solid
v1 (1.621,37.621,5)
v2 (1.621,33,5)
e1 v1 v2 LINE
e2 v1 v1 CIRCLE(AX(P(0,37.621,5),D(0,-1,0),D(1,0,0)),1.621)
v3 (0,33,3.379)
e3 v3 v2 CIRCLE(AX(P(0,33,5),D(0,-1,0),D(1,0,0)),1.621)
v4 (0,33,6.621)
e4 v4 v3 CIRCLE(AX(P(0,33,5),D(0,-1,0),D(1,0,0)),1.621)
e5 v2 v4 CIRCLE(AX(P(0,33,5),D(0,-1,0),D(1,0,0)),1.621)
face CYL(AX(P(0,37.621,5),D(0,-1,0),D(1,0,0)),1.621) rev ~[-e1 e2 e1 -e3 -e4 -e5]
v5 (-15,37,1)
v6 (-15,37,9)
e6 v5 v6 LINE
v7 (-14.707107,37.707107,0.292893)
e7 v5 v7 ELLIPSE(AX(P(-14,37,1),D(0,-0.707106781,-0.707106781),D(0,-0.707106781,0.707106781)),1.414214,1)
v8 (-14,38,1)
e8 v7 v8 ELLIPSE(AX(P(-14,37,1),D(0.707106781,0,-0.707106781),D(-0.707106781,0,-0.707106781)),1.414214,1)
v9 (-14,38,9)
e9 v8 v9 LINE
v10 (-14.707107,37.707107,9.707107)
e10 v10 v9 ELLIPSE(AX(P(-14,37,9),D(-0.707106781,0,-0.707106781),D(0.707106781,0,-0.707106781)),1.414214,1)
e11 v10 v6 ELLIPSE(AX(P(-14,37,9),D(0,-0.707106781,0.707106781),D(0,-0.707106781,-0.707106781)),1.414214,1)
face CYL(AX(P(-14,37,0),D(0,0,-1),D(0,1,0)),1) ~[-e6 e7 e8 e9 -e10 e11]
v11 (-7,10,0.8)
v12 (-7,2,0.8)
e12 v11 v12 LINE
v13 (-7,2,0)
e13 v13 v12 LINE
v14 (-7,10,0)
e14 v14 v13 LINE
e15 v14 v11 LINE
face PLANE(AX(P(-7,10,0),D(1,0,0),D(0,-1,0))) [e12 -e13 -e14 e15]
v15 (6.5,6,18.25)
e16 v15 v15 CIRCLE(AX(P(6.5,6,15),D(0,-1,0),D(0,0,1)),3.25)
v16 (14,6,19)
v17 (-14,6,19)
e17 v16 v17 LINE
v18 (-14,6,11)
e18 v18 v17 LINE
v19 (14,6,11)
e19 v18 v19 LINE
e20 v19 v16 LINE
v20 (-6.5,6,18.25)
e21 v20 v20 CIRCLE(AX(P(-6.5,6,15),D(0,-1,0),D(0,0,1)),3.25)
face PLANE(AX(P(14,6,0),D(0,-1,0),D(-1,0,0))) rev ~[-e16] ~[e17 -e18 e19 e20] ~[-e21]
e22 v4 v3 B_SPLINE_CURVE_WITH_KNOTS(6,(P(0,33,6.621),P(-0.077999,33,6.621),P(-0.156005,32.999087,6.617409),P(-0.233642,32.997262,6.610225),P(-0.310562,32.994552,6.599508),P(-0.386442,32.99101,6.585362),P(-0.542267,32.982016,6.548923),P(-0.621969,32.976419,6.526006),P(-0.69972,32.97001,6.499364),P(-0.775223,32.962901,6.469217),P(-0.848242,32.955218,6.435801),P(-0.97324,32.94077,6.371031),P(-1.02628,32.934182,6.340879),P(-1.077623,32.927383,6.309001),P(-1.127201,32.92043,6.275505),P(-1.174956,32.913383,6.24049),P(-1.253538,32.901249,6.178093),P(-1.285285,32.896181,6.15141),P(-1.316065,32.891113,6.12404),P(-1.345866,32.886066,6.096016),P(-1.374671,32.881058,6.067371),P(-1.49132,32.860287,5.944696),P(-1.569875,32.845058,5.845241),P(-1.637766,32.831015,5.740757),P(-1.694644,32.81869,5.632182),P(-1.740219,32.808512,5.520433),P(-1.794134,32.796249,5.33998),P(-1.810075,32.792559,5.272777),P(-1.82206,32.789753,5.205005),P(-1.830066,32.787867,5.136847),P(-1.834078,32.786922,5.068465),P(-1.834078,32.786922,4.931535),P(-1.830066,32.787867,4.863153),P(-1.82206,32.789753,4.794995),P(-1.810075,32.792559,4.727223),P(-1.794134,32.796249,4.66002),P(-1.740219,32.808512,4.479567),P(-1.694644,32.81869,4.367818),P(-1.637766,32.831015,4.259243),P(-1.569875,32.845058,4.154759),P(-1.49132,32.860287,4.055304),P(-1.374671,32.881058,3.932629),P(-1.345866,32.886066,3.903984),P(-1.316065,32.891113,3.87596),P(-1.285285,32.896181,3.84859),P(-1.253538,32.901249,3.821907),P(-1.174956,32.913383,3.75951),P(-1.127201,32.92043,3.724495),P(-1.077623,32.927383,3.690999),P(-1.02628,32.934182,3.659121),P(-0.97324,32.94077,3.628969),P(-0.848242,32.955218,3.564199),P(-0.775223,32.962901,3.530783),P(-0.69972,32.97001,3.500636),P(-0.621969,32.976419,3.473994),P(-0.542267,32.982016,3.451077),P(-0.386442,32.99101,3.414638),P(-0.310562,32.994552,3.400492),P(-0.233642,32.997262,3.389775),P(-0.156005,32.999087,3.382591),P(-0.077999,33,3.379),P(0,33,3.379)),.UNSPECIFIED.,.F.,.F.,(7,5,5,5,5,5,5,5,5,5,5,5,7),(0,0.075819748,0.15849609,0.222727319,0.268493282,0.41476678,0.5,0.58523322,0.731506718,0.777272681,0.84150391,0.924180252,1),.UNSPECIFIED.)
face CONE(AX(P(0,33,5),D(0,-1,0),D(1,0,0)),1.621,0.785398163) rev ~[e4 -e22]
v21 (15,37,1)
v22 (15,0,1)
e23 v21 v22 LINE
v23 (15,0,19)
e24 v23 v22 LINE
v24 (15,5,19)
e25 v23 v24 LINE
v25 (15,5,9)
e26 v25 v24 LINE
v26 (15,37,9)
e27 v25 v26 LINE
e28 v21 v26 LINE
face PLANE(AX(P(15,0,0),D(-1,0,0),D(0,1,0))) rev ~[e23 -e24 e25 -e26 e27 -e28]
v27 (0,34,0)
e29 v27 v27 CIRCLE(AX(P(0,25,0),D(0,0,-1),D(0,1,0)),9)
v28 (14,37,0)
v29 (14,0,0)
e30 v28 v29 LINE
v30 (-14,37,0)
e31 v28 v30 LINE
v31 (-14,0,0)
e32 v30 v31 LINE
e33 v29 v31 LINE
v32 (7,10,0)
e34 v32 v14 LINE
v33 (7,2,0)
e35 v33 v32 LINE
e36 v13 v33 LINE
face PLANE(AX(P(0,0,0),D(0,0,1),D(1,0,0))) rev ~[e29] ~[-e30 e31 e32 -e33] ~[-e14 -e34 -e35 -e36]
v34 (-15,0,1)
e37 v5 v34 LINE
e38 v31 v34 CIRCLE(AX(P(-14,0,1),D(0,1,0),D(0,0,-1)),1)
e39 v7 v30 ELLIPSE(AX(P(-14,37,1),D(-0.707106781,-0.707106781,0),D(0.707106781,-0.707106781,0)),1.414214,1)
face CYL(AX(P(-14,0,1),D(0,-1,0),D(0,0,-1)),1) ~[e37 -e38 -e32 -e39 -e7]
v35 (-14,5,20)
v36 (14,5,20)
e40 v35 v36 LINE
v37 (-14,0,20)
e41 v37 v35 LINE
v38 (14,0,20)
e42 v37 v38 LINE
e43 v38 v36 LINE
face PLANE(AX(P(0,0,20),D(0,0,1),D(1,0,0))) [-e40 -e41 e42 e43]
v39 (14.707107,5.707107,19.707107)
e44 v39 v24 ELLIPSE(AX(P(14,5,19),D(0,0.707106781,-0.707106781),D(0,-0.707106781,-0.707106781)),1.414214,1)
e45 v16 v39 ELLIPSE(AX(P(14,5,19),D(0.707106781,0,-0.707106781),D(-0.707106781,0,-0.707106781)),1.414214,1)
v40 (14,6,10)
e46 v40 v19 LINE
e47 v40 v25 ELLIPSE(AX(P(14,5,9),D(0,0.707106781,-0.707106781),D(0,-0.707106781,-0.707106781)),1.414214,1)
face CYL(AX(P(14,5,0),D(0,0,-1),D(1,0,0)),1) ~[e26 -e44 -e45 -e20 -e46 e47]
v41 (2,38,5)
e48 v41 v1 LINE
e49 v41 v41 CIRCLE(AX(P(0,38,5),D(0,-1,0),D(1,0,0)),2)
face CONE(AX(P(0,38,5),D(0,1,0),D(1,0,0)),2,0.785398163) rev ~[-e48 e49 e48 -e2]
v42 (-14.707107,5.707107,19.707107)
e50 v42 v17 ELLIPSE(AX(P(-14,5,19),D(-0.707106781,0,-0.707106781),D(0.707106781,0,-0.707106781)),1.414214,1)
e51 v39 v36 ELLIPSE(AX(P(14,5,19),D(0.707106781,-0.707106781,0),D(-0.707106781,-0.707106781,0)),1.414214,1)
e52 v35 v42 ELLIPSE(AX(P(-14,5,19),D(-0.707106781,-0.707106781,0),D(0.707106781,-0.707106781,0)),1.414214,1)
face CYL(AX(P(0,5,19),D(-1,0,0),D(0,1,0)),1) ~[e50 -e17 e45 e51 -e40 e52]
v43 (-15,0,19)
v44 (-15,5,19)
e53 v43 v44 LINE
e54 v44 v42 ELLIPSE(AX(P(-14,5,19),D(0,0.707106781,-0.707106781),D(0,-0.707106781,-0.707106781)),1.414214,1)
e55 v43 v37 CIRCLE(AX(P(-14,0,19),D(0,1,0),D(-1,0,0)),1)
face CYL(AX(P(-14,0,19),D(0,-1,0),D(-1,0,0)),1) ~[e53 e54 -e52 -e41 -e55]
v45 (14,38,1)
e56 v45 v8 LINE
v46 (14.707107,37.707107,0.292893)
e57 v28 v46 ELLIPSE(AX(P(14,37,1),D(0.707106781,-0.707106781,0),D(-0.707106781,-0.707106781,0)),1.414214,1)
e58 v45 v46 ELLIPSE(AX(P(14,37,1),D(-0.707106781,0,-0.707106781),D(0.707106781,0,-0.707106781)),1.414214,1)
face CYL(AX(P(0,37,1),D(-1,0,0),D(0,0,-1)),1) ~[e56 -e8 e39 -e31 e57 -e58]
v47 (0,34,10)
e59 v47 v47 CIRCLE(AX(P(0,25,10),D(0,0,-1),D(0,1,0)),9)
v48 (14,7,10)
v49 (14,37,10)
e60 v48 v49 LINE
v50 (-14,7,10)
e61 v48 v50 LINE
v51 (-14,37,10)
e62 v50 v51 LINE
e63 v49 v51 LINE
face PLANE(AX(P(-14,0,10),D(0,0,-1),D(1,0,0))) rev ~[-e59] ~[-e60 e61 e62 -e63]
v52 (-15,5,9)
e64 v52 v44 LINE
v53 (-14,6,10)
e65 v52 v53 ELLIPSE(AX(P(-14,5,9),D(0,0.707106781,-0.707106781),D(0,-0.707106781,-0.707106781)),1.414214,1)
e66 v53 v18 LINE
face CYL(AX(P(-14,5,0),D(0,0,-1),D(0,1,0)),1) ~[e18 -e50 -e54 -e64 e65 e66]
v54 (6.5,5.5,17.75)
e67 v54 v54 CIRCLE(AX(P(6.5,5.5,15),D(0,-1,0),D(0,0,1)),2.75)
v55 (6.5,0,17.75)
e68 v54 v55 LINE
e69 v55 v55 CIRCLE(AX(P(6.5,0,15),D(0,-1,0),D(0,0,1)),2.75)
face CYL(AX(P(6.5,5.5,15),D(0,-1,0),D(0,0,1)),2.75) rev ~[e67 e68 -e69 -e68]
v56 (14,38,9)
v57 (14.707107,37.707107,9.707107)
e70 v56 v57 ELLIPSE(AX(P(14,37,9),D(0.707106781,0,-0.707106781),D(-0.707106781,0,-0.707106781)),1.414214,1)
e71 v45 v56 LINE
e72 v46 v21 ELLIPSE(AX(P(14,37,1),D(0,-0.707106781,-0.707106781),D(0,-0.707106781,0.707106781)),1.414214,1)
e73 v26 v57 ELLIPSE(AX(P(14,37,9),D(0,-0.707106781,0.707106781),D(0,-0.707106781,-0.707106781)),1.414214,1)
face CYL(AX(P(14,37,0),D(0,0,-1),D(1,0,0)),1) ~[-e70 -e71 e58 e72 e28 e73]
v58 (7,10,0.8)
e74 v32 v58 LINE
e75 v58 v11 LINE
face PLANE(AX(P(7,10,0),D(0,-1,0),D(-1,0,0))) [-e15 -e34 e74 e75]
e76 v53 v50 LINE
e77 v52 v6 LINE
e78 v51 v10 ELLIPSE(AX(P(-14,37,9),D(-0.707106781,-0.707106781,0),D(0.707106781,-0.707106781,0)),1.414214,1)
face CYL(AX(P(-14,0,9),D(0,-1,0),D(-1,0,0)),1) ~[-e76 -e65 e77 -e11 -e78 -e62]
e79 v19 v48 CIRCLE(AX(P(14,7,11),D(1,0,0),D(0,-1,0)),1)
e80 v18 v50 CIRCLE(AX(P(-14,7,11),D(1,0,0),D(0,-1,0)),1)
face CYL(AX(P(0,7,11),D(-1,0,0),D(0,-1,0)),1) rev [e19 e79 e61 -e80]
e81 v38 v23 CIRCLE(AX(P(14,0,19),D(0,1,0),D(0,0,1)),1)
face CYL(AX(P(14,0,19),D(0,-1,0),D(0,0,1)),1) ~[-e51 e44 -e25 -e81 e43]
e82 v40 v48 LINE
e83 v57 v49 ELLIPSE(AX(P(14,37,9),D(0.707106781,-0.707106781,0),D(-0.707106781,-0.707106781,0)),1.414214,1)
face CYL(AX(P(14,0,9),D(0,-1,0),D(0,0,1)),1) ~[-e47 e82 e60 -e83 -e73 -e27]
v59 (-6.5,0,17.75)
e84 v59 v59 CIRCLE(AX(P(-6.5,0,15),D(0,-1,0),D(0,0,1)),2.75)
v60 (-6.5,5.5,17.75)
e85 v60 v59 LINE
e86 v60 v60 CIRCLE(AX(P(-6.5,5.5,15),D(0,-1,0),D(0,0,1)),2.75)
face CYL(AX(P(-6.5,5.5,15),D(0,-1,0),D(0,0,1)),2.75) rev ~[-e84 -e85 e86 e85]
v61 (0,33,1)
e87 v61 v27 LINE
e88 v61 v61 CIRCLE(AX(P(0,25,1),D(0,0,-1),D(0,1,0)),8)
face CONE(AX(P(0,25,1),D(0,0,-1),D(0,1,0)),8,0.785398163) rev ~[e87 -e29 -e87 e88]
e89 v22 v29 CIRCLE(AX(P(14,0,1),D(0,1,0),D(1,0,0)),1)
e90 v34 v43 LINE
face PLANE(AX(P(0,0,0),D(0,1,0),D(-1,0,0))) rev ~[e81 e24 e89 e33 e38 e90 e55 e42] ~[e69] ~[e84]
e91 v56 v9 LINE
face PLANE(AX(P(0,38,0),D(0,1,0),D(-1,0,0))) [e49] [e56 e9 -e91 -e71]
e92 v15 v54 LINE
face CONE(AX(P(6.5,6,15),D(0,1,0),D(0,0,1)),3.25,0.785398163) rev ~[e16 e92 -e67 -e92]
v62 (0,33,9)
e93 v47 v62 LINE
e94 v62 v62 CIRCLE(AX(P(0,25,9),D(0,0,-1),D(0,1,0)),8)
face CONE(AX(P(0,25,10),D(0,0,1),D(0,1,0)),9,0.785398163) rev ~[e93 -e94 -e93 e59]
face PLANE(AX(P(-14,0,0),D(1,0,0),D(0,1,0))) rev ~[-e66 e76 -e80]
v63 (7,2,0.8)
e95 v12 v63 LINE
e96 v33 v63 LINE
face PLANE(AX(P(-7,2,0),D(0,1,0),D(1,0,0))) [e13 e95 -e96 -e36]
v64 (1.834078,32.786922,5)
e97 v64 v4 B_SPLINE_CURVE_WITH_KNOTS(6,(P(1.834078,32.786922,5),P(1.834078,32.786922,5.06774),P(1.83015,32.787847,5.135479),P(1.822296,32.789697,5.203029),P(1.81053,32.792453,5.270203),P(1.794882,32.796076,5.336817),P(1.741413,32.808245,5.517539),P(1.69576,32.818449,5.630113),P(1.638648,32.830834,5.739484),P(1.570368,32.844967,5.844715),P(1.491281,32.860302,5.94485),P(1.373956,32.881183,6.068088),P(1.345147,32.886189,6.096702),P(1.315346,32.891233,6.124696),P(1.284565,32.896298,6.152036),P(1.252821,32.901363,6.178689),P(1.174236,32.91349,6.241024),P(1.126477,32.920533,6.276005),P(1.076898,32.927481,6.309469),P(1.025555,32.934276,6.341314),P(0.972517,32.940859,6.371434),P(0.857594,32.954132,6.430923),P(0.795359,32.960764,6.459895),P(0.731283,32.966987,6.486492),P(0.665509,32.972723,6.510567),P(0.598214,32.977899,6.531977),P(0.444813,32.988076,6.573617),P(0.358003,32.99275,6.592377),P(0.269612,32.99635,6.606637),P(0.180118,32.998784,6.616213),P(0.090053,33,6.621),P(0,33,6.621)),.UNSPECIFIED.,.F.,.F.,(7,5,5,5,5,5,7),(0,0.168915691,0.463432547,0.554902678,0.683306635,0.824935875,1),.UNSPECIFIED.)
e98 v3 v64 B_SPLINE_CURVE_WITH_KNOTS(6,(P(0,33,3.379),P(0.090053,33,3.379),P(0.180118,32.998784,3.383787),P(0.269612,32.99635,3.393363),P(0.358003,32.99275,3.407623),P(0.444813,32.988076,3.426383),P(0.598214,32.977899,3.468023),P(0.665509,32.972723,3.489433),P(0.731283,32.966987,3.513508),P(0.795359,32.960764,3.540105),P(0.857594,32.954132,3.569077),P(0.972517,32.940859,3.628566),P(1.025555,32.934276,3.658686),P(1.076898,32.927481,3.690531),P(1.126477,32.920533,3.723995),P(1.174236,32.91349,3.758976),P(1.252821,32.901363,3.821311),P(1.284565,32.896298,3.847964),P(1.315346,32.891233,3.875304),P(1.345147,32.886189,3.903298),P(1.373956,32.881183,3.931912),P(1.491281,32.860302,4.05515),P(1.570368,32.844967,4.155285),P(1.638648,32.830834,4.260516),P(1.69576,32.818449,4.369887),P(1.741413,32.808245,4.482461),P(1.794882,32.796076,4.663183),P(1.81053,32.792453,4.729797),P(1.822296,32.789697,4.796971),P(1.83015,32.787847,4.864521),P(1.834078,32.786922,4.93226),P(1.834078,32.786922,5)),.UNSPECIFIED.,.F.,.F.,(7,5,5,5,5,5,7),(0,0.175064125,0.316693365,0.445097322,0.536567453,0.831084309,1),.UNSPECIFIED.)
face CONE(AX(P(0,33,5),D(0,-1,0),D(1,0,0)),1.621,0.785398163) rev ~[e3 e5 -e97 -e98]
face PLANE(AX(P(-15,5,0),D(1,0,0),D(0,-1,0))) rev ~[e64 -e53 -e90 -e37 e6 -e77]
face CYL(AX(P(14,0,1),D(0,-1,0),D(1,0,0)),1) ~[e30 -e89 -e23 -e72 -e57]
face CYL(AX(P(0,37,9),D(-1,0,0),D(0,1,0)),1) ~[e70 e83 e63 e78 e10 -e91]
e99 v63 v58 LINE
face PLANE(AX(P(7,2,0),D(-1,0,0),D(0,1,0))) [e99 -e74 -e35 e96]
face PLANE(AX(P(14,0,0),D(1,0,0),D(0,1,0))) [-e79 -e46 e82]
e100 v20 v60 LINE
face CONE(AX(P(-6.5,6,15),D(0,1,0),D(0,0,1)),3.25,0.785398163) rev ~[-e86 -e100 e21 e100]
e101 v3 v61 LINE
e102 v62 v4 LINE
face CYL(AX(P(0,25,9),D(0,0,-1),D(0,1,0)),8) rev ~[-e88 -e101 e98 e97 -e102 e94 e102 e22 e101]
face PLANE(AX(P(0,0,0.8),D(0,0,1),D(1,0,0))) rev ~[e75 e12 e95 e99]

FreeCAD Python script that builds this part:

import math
import FreeCAD as App
import Part
import Sketcher

doc = App.newDocument("Part")
body = doc.addObject("PartDesign::Body", "Body")

# Sketch on XY plane
sketch1 = body.newObject("Sketcher::SketchObject", "Sketch")
sketch1.AttachmentSupport = (doc.getObject("XY_Plane"), [""])
sketch1.MapMode = "FlatFace"
sketch1.addGeometry(Part.ArcOfCircle(Part.Circle(App.Vector(-14, 5, 0), App.Vector(0, 0, 1), 1), math.radians(90), math.radians(180)), False)
sketch1.addGeometry(Part.LineSegment(App.Vector(-15, 5, 0), App.Vector(-15, 0, 0)), False)
sketch1.addGeometry(Part.LineSegment(App.Vector(-15, 0, 0), App.Vector(15, 0, 0)), False)
sketch1.addGeometry(Part.LineSegment(App.Vector(15, 0, 0), App.Vector(15, 5, 0)), False)
sketch1.addGeometry(Part.ArcOfCircle(Part.Circle(App.Vector(14, 5, 0), App.Vector(0, 0, 1), 1), math.radians(0), math.radians(90)), False)
sketch1.addGeometry(Part.LineSegment(App.Vector(14, 6, 0), App.Vector(-14, 6, 0)), False)
sketch1.addConstraint(Sketcher.Constraint("Tangent", 0, 2, 1, 1))
sketch1.addConstraint(Sketcher.Constraint("Coincident", 1, 2, 2, 1))
sketch1.addConstraint(Sketcher.Constraint("Coincident", 2, 2, 3, 1))
sketch1.addConstraint(Sketcher.Constraint("Tangent", 3, 2, 4, 1))
sketch1.addConstraint(Sketcher.Constraint("Tangent", 4, 2, 5, 1))
sketch1.addConstraint(Sketcher.Constraint("Tangent", 5, 2, 0, 1))
sketch1.addConstraint(Sketcher.Constraint("Vertical", 1))
sketch1.addConstraint(Sketcher.Constraint("Horizontal", 2))
sketch1.addConstraint(Sketcher.Constraint("Vertical", 3))
sketch1.addConstraint(Sketcher.Constraint("Horizontal", 5))
sketch1.addConstraint(Sketcher.Constraint("Equal", 0, 4))
sketch1.addConstraint(Sketcher.Constraint("Symmetric", 1, 2, 2, 2, -1, 1))
sketch1.addConstraint(Sketcher.Constraint("Radius", 0, 1.0))
sketch1.addConstraint(Sketcher.Constraint("DistanceX", 2, 1, 2, 2, 30.0))
sketch1.addConstraint(Sketcher.Constraint("DistanceY", 1, 2, 1, 1, 5.0))
pad1 = body.newObject("PartDesign::Pad", "Pad")
pad1.Profile = sketch1
pad1.Length = 20

# Sketch on XZ plane
sketch2 = body.newObject("Sketcher::SketchObject", "Sketch001")
sketch2.AttachmentSupport = (doc.getObject("XZ_Plane"), [""])
sketch2.MapMode = "FlatFace"
sketch2.addGeometry(Part.ArcOfCircle(Part.Circle(App.Vector(-14, 1, 0), App.Vector(0, 0, 1), 1), math.radians(180), math.radians(270)), False)
sketch2.addGeometry(Part.LineSegment(App.Vector(-15, 1, 0), App.Vector(-15, 9, 0)), False)
sketch2.addGeometry(Part.ArcOfCircle(Part.Circle(App.Vector(-14, 9, 0), App.Vector(0, 0, 1), 1), math.radians(90), math.radians(180)), False)
sketch2.addGeometry(Part.LineSegment(App.Vector(-14, 10, 0), App.Vector(14, 10, 0)), False)
sketch2.addGeometry(Part.ArcOfCircle(Part.Circle(App.Vector(14, 9, 0), App.Vector(0, 0, 1), 1), math.radians(0), math.radians(90)), False)
sketch2.addGeometry(Part.LineSegment(App.Vector(15, 9, 0), App.Vector(15, 1, 0)), False)
sketch2.addGeometry(Part.ArcOfCircle(Part.Circle(App.Vector(14, 1, 0), App.Vector(0, 0, 1), 1), math.radians(-90), math.radians(0)), False)
sketch2.addGeometry(Part.LineSegment(App.Vector(14, 0, 0), App.Vector(-14, 0, 0)), False)
sketch2.addConstraint(Sketcher.Constraint("Tangent", 0, 1, 1, 1))
sketch2.addConstraint(Sketcher.Constraint("Tangent", 1, 2, 2, 2))
sketch2.addConstraint(Sketcher.Constraint("Tangent", 2, 1, 3, 1))
sketch2.addConstraint(Sketcher.Constraint("Tangent", 3, 2, 4, 2))
sketch2.addConstraint(Sketcher.Constraint("Tangent", 4, 1, 5, 1))
sketch2.addConstraint(Sketcher.Constraint("Tangent", 5, 2, 6, 2))
sketch2.addConstraint(Sketcher.Constraint("Tangent", 6, 1, 7, 1))
sketch2.addConstraint(Sketcher.Constraint("Tangent", 7, 2, 0, 2))
sketch2.addConstraint(Sketcher.Constraint("Vertical", 1))
sketch2.addConstraint(Sketcher.Constraint("Horizontal", 3))
sketch2.addConstraint(Sketcher.Constraint("Vertical", 5))
sketch2.addConstraint(Sketcher.Constraint("Horizontal", 7))
sketch2.addConstraint(Sketcher.Constraint("Equal", 0, 2))
sketch2.addConstraint(Sketcher.Constraint("Equal", 2, 4))
sketch2.addConstraint(Sketcher.Constraint("Equal", 4, 6))
sketch2.addConstraint(Sketcher.Constraint("Symmetric", 6, 1, 7, 2, -1, 1))
sketch2.addConstraint(Sketcher.Constraint("Radius", 0, 1.0))
sketch2.addConstraint(Sketcher.Constraint("DistanceX", 3, 1, 3, 2, 28.0))
sketch2.addConstraint(Sketcher.Constraint("DistanceY", 1, 1, 1, 2, 8.0))
pad2 = body.newObject("PartDesign::Pad", "Pad001")
pad2.Profile = sketch2
pad2.Length = 38
pad2.Reversed = True

# Sketch on XY plane
sketch3 = body.newObject("Sketcher::SketchObject", "Sketch002")
sketch3.AttachmentSupport = (doc.getObject("XY_Plane"), [""])
sketch3.MapMode = "FlatFace"
sketch3.addGeometry(Part.ArcOfCircle(Part.Circle(App.Vector(-14, 37, 0), App.Vector(0, 0, 1), 1), math.radians(90), math.radians(180)), False)
sketch3.addGeometry(Part.LineSegment(App.Vector(-14, 38, 0), App.Vector(14, 38, 0)), False)
sketch3.addGeometry(Part.ArcOfCircle(Part.Circle(App.Vector(14, 37, 0), App.Vector(0, 0, 1), 1), math.radians(0), math.radians(90)), False)
sketch3.addGeometry(Part.LineSegment(App.Vector(15, 37, 0), App.Vector(15, 76, 0)), False)
sketch3.addGeometry(Part.LineSegment(App.Vector(15, 76, 0), App.Vector(-15, 76, 0)), False)
sketch3.addGeometry(Part.LineSegment(App.Vector(-15, 76, 0), App.Vector(-15, 37, 0)), False)
sketch3.addConstraint(Sketcher.Constraint("Tangent", 0, 1, 1, 1))
sketch3.addConstraint(Sketcher.Constraint("Tangent", 1, 2, 2, 2))
sketch3.addConstraint(Sketcher.Constraint("Tangent", 2, 1, 3, 1))
sketch3.addConstraint(Sketcher.Constraint("Coincident", 3, 2, 4, 1))
sketch3.addConstraint(Sketcher.Constraint("Coincident", 4, 2, 5, 1))
sketch3.addConstraint(Sketcher.Constraint("Tangent", 5, 2, 0, 2))
sketch3.addConstraint(Sketcher.Constraint("Horizontal", 1))
sketch3.addConstraint(Sketcher.Constraint("Vertical", 3))
sketch3.addConstraint(Sketcher.Constraint("Horizontal", 4))
sketch3.addConstraint(Sketcher.Constraint("Vertical", 5))
sketch3.addConstraint(Sketcher.Constraint("Equal", 0, 2))
sketch3.addConstraint(Sketcher.Constraint("Radius", 0, 1.0))
sketch3.addConstraint(Sketcher.Constraint("DistanceX", 1, 1, 1, 2, 28.0))
sketch3.addConstraint(Sketcher.Constraint("DistanceY", 3, 1, 3, 2, 39.0))
sketch3.addConstraint(Sketcher.Constraint("DistanceX", 0, 3, -1, 1, 14.0))
sketch3.addConstraint(Sketcher.Constraint("DistanceY", -1, 1, 0, 3, 37.0))
pocket1 = body.newObject("PartDesign::Pocket", "Pocket")
pocket1.Profile = sketch3
pocket1.Length = 10
pocket1.Reversed = True

# Sketch on YZ plane
sketch4 = body.newObject("Sketcher::SketchObject", "Sketch003")
sketch4.AttachmentSupport = (doc.getObject("YZ_Plane"), [""])
sketch4.MapMode = "FlatFace"
sketch4.addGeometry(Part.LineSegment(App.Vector(25, 10, 0), App.Vector(25, 0, 0)), False)
sketch4.addGeometry(Part.LineSegment(App.Vector(25, 0, 0), App.Vector(34, 0, 0)), False)
sketch4.addGeometry(Part.LineSegment(App.Vector(34, 0, 0), App.Vector(33, 1, 0)), False)
sketch4.addGeometry(Part.LineSegment(App.Vector(33, 1, 0), App.Vector(33, 9, 0)), False)
sketch4.addGeometry(Part.LineSegment(App.Vector(33, 9, 0), App.Vector(34, 10, 0)), False)
sketch4.addGeometry(Part.LineSegment(App.Vector(34, 10, 0), App.Vector(25, 10, 0)), False)
sketch4.addGeometry(Part.LineSegment(App.Vector(25, 10, 0), App.Vector(25, 0, 0)), True)  # axis
sketch4.addConstraint(Sketcher.Constraint("Coincident", 0, 2, 1, 1))
sketch4.addConstraint(Sketcher.Constraint("Coincident", 1, 2, 2, 1))
sketch4.addConstraint(Sketcher.Constraint("Coincident", 2, 2, 3, 1))
sketch4.addConstraint(Sketcher.Constraint("Coincident", 3, 2, 4, 1))
sketch4.addConstraint(Sketcher.Constraint("Coincident", 4, 2, 5, 1))
sketch4.addConstraint(Sketcher.Constraint("Coincident", 5, 2, 0, 1))
sketch4.addConstraint(Sketcher.Constraint("Vertical", 0))
sketch4.addConstraint(Sketcher.Constraint("Horizontal", 1))
sketch4.addConstraint(Sketcher.Constraint("Vertical", 3))
sketch4.addConstraint(Sketcher.Constraint("Horizontal", 5))
sketch4.addConstraint(Sketcher.Constraint("Vertical", 6))
sketch4.addConstraint(Sketcher.Constraint("Coincident", 6, 1, 5, 2))
sketch4.addConstraint(Sketcher.Constraint("PointOnObject", 0, 2, -1))
sketch4.addConstraint(Sketcher.Constraint("PointOnObject", 6, 2, -1))
sketch4.addConstraint(Sketcher.Constraint("Perpendicular", 2, 4))
sketch4.addConstraint(Sketcher.Constraint("Vertical", 1, 2, 4, 2))
sketch4.addConstraint(Sketcher.Constraint("Equal", 2, 4))
sketch4.addConstraint(Sketcher.Constraint("DistanceX", 1, 1, 1, 2, 9.0))
sketch4.addConstraint(Sketcher.Constraint("DistanceY", 0, 2, 0, 1, 10.0))
sketch4.addConstraint(Sketcher.Constraint("DistanceY", 3, 1, 3, 2, 8.0))
sketch4.addConstraint(Sketcher.Constraint("DistanceX", -1, 1, 0, 2, 25.0))
groove = body.newObject("PartDesign::Groove", "Groove")
groove.Profile = sketch4
groove.ReferenceAxis = (sketch4, ["Axis0"])
groove.Angle = 360

# Sketch on XY plane
sketch5 = body.newObject("Sketcher::SketchObject", "Sketch004")
sketch5.AttachmentSupport = (doc.getObject("XY_Plane"), [""])
sketch5.MapMode = "FlatFace"
sketch5.AttachmentOffset = App.Placement(App.Vector(0, 0, 5), App.Rotation())
sketch5.addGeometry(Part.LineSegment(App.Vector(0, 38, 0), App.Vector(0, 25, 0)), False)
sketch5.addGeometry(Part.LineSegment(App.Vector(0, 25, 0), App.Vector(2, 25, 0)), False)
sketch5.addGeometry(Part.LineSegment(App.Vector(2, 25, 0), App.Vector(2, 32.6, 0)), False)
sketch5.addGeometry(Part.LineSegment(App.Vector(2, 32.6, 0), App.Vector(1.6, 33, 0)), False)
sketch5.addGeometry(Part.LineSegment(App.Vector(1.6, 33, 0), App.Vector(1.6, 37.6, 0)), False)
sketch5.addGeometry(Part.LineSegment(App.Vector(1.6, 37.6, 0), App.Vector(2, 38, 0)), False)
sketch5.addGeometry(Part.LineSegment(App.Vector(2, 38, 0), App.Vector(0, 38, 0)), False)
sketch5.addConstraint(Sketcher.Constraint("Coincident", 0, 2, 1, 1))
sketch5.addConstraint(Sketcher.Constraint("Coincident", 1, 2, 2, 1))
sketch5.addConstraint(Sketcher.Constraint("Coincident", 2, 2, 3, 1))
sketch5.addConstraint(Sketcher.Constraint("Coincident", 3, 2, 4, 1))
sketch5.addConstraint(Sketcher.Constraint("Coincident", 4, 2, 5, 1))
sketch5.addConstraint(Sketcher.Constraint("Coincident", 5, 2, 6, 1))
sketch5.addConstraint(Sketcher.Constraint("Coincident", 6, 2, 0, 1))
sketch5.addConstraint(Sketcher.Constraint("Vertical", 0))
sketch5.addConstraint(Sketcher.Constraint("Horizontal", 1))
sketch5.addConstraint(Sketcher.Constraint("Vertical", 2))
sketch5.addConstraint(Sketcher.Constraint("Vertical", 4))
sketch5.addConstraint(Sketcher.Constraint("Horizontal", 6))
sketch5.addConstraint(Sketcher.Constraint("PointOnObject", 0, 2, -2))
sketch5.addConstraint(Sketcher.Constraint("Perpendicular", 3, 5))
sketch5.addConstraint(Sketcher.Constraint("Vertical", 2, 2, 5, 2))
sketch5.addConstraint(Sketcher.Constraint("Equal", 3, 5))
sketch5.addConstraint(Sketcher.Constraint("DistanceX", 1, 1, 1, 2, 2.0))
sketch5.addConstraint(Sketcher.Constraint("DistanceY", 0, 2, 0, 1, 13.0))
sketch5.addConstraint(Sketcher.Constraint("DistanceY", -1, 1, 0, 2, 25.0))
sketch5.addConstraint(Sketcher.Constraint("DistanceY", -1, 1, 3, 2, 33.0))
sketch5.addConstraint(Sketcher.Constraint("DistanceY", 2, 1, 2, 2, 7.621))
groove2 = body.newObject("PartDesign::Groove", "Groove001")
groove2.Profile = sketch5
groove2.ReferenceAxis = (sketch5, ["V_Axis"])
groove2.Angle = 360

# Sketch on XZ plane
sketch6 = body.newObject("Sketcher::SketchObject", "Sketch005")
sketch6.AttachmentSupport = (doc.getObject("XZ_Plane"), [""])
sketch6.MapMode = "FlatFace"
sketch6.AttachmentOffset = App.Placement(App.Vector(0, 0, -6), App.Rotation())
sketch6.addGeometry(Part.Circle(App.Vector(-6.5, 15, 0), App.Vector(0, 0, 1), 2.8), False)
sketch6.addConstraint(Sketcher.Constraint("Diameter", 0, 5.5))
sketch6.addConstraint(Sketcher.Constraint("DistanceY", -1, 1, 0, 3, 15.0))
sketch6.addConstraint(Sketcher.Constraint("DistanceX", 0, 3, -1, 1, 6.5))
doc.recompute()
hole = body.newObject("PartDesign::Hole", "Hole")
hole.Profile = sketch6
hole.ThreadType = "None"
hole.Diameter = 5.5
hole.DepthType = "Dimension"
hole.Depth = 6
hole.DrillPoint = "Flat"
hole.HoleCutType = "Countersink"
hole.HoleCutDiameter = 6.5
hole.HoleCutCountersinkAngle = 90
hole.Reversed = True

# Sketch on XZ plane
sketch7 = body.newObject("Sketcher::SketchObject", "Sketch006")
sketch7.AttachmentSupport = (doc.getObject("XZ_Plane"), [""])
sketch7.MapMode = "FlatFace"
sketch7.AttachmentOffset = App.Placement(App.Vector(0, 0, -6), App.Rotation())
sketch7.addGeometry(Part.Circle(App.Vector(6.5, 15, 0), App.Vector(0, 0, 1), 2.8), False)
sketch7.addConstraint(Sketcher.Constraint("Diameter", 0, 5.5))
sketch7.addConstraint(Sketcher.Constraint("DistanceY", -1, 1, 0, 3, 15.0))
sketch7.addConstraint(Sketcher.Constraint("DistanceX", -1, 1, 0, 3, 6.5))
doc.recompute()
hole2 = body.newObject("PartDesign::Hole", "Hole001")
hole2.Profile = sketch7
hole2.ThreadType = "None"
hole2.Diameter = 5.5
hole2.DepthType = "Dimension"
hole2.Depth = 6
hole2.DrillPoint = "Flat"
hole2.HoleCutType = "Countersink"
hole2.HoleCutDiameter = 6.5
hole2.HoleCutCountersinkAngle = 90
hole2.Reversed = True

# Sketch on XZ plane
sketch8 = body.newObject("Sketcher::SketchObject", "Sketch007")
sketch8.AttachmentSupport = (doc.getObject("XZ_Plane"), [""])
sketch8.MapMode = "FlatFace"
sketch8.addGeometry(Part.LineSegment(App.Vector(30, -10, 0), App.Vector(-30, -10, 0)), False)
sketch8.addGeometry(Part.LineSegment(App.Vector(-30, -10, 0), App.Vector(-30, 30, 0)), False)
sketch8.addGeometry(Part.LineSegment(App.Vector(-30, 30, 0), App.Vector(30, 30, 0)), False)
sketch8.addGeometry(Part.LineSegment(App.Vector(30, 30, 0), App.Vector(30, -10, 0)), False)
sketch8.addGeometry(Part.LineSegment(App.Vector(-15, 19, 0), App.Vector(-15, 1, 0)), False)
sketch8.addGeometry(Part.ArcOfCircle(Part.Circle(App.Vector(-14, 1, 0), App.Vector(0, 0, 1), 1), math.radians(180), math.radians(270)), False)
sketch8.addGeometry(Part.LineSegment(App.Vector(-14, 0, 0), App.Vector(14, 0, 0)), False)
sketch8.addGeometry(Part.ArcOfCircle(Part.Circle(App.Vector(14, 1, 0), App.Vector(0, 0, 1), 1), math.radians(-90), math.radians(0)), False)
sketch8.addGeometry(Part.LineSegment(App.Vector(15, 1, 0), App.Vector(15, 19, 0)), False)
sketch8.addGeometry(Part.ArcOfCircle(Part.Circle(App.Vector(14, 19, 0), App.Vector(0, 0, 1), 1), math.radians(0), math.radians(90)), False)
sketch8.addGeometry(Part.LineSegment(App.Vector(14, 20, 0), App.Vector(-14, 20, 0)), False)
sketch8.addGeometry(Part.ArcOfCircle(Part.Circle(App.Vector(-14, 19, 0), App.Vector(0, 0, 1), 1), math.radians(90), math.radians(180)), False)
sketch8.addConstraint(Sketcher.Constraint("Coincident", 0, 2, 1, 1))
sketch8.addConstraint(Sketcher.Constraint("Coincident", 1, 2, 2, 1))
sketch8.addConstraint(Sketcher.Constraint("Coincident", 2, 2, 3, 1))
sketch8.addConstraint(Sketcher.Constraint("Coincident", 3, 2, 0, 1))
sketch8.addConstraint(Sketcher.Constraint("Tangent", 4, 2, 5, 1))
sketch8.addConstraint(Sketcher.Constraint("Tangent", 5, 2, 6, 1))
sketch8.addConstraint(Sketcher.Constraint("Tangent", 6, 2, 7, 1))
sketch8.addConstraint(Sketcher.Constraint("Tangent", 7, 2, 8, 1))
sketch8.addConstraint(Sketcher.Constraint("Tangent", 8, 2, 9, 1))
sketch8.addConstraint(Sketcher.Constraint("Tangent", 9, 2, 10, 1))
sketch8.addConstraint(Sketcher.Constraint("Tangent", 10, 2, 11, 1))
sketch8.addConstraint(Sketcher.Constraint("Tangent", 11, 2, 4, 1))
sketch8.addConstraint(Sketcher.Constraint("Horizontal", 0))
sketch8.addConstraint(Sketcher.Constraint("Vertical", 1))
sketch8.addConstraint(Sketcher.Constraint("Horizontal", 2))
sketch8.addConstraint(Sketcher.Constraint("Vertical", 3))
sketch8.addConstraint(Sketcher.Constraint("Vertical", 4))
sketch8.addConstraint(Sketcher.Constraint("Horizontal", 6))
sketch8.addConstraint(Sketcher.Constraint("Vertical", 8))
sketch8.addConstraint(Sketcher.Constraint("Horizontal", 10))
sketch8.addConstraint(Sketcher.Constraint("Equal", 5, 7))
sketch8.addConstraint(Sketcher.Constraint("Equal", 7, 9))
sketch8.addConstraint(Sketcher.Constraint("Equal", 9, 11))
sketch8.addConstraint(Sketcher.Constraint("Symmetric", 5, 2, 6, 2, -1, 1))
sketch8.addConstraint(Sketcher.Constraint("Radius", 5, 1.0))
sketch8.addConstraint(Sketcher.Constraint("DistanceX", 0, 2, 0, 1, 60.0))
sketch8.addConstraint(Sketcher.Constraint("DistanceX", 6, 1, 6, 2, 28.0))
sketch8.addConstraint(Sketcher.Constraint("DistanceY", 1, 1, 1, 2, 40.0))
sketch8.addConstraint(Sketcher.Constraint("DistanceY", 4, 2, 4, 1, 18.0))
sketch8.addConstraint(Sketcher.Constraint("DistanceX", 0, 2, -1, 1, 30.0))
sketch8.addConstraint(Sketcher.Constraint("DistanceY", 0, 2, -1, 1, 10.0))
pocket2 = body.newObject("PartDesign::Pocket", "Pocket001")
pocket2.Profile = sketch8
pocket2.Length = 38

# Sketch on XY plane
sketch9 = body.newObject("Sketcher::SketchObject", "Sketch008")
sketch9.AttachmentSupport = (doc.getObject("XY_Plane"), [""])
sketch9.MapMode = "FlatFace"
sketch9.addGeometry(Part.LineSegment(App.Vector(7, 10, 0), App.Vector(-7, 10, 0)), False)
sketch9.addGeometry(Part.LineSegment(App.Vector(-7, 10, 0), App.Vector(-7, 2, 0)), False)
sketch9.addGeometry(Part.LineSegment(App.Vector(-7, 2, 0), App.Vector(7, 2, 0)), False)
sketch9.addGeometry(Part.LineSegment(App.Vector(7, 2, 0), App.Vector(7, 10, 0)), False)
sketch9.addConstraint(Sketcher.Constraint("Coincident", 0, 2, 1, 1))
sketch9.addConstraint(Sketcher.Constraint("Coincident", 1, 2, 2, 1))
sketch9.addConstraint(Sketcher.Constraint("Coincident", 2, 2, 3, 1))
sketch9.addConstraint(Sketcher.Constraint("Coincident", 3, 2, 0, 1))
sketch9.addConstraint(Sketcher.Constraint("Horizontal", 0))
sketch9.addConstraint(Sketcher.Constraint("Vertical", 1))
sketch9.addConstraint(Sketcher.Constraint("Horizontal", 2))
sketch9.addConstraint(Sketcher.Constraint("Vertical", 3))
sketch9.addConstraint(Sketcher.Constraint("DistanceX", 0, 2, 0, 1, 14.0))
sketch9.addConstraint(Sketcher.Constraint("DistanceY", 1, 2, 1, 1, 8.0))
sketch9.addConstraint(Sketcher.Constraint("DistanceX", 0, 2, -1, 1, 7.0))
sketch9.addConstraint(Sketcher.Constraint("DistanceY", -1, 1, 0, 2, 10.0))
pocket3 = body.newObject("PartDesign::Pocket", "Pocket002")
pocket3.Profile = sketch9
pocket3.Length = 0.8
pocket3.Reversed = True

# Sketch on YZ plane
sketch10 = body.newObject("Sketcher::SketchObject", "Sketch009")
sketch10.AttachmentSupport = (doc.getObject("YZ_Plane"), [""])
sketch10.MapMode = "FlatFace"
sketch10.addGeometry(Part.LineSegment(App.Vector(57, -10, 0), App.Vector(57, 30, 0)), False)
sketch10.addGeometry(Part.LineSegment(App.Vector(57, 30, 0), App.Vector(-19, 30, 0)), False)
sketch10.addGeometry(Part.LineSegment(App.Vector(-19, 30, 0), App.Vector(-19, -10, 0)), False)
sketch10.addGeometry(Part.LineSegment(App.Vector(-19, -10, 0), App.Vector(57, -10, 0)), False)
sketch10.addGeometry(Part.LineSegment(App.Vector(0, 20, 0), App.Vector(5, 20, 0)), False)
sketch10.addGeometry(Part.ArcOfCircle(Part.Circle(App.Vector(5, 19, 0), App.Vector(0, 0, 1), 1), math.radians(0), math.radians(90)), False)
sketch10.addGeometry(Part.LineSegment(App.Vector(6, 19, 0), App.Vector(6, 10, 0)), False)
sketch10.addGeometry(Part.LineSegment(App.Vector(6, 10, 0), App.Vector(37, 10, 0)), False)
sketch10.addGeometry(Part.ArcOfCircle(Part.Circle(App.Vector(37, 9, 0), App.Vector(0, 0, 1), 1), math.radians(0), math.radians(90)), False)
sketch10.addGeometry(Part.LineSegment(App.Vector(38, 9, 0), App.Vector(38, 1, 0)), False)
sketch10.addGeometry(Part.ArcOfCircle(Part.Circle(App.Vector(37, 1, 0), App.Vector(0, 0, 1), 1), math.radians(-90), math.radians(0)), False)
sketch10.addGeometry(Part.LineSegment(App.Vector(37, 0, 0), App.Vector(0, 0, 0)), False)
sketch10.addGeometry(Part.LineSegment(App.Vector(0, 0, 0), App.Vector(0, 20, 0)), False)
sketch10.addConstraint(Sketcher.Constraint("Coincident", 0, 2, 1, 1))
sketch10.addConstraint(Sketcher.Constraint("Coincident", 1, 2, 2, 1))
sketch10.addConstraint(Sketcher.Constraint("Coincident", 2, 2, 3, 1))
sketch10.addConstraint(Sketcher.Constraint("Coincident", 3, 2, 0, 1))
sketch10.addConstraint(Sketcher.Constraint("Tangent", 4, 2, 5, 2))
sketch10.addConstraint(Sketcher.Constraint("Tangent", 5, 1, 6, 1))
sketch10.addConstraint(Sketcher.Constraint("Coincident", 6, 2, 7, 1))
sketch10.addConstraint(Sketcher.Constraint("Tangent", 7, 2, 8, 2))
sketch10.addConstraint(Sketcher.Constraint("Tangent", 8, 1, 9, 1))
sketch10.addConstraint(Sketcher.Constraint("Tangent", 9, 2, 10, 2))
sketch10.addConstraint(Sketcher.Constraint("Tangent", 10, 1, 11, 1))
sketch10.addConstraint(Sketcher.Constraint("Coincident", 11, 2, 12, 1))
sketch10.addConstraint(Sketcher.Constraint("Coincident", 12, 2, 4, 1))
sketch10.addConstraint(Sketcher.Constraint("Vertical", 0))
sketch10.addConstraint(Sketcher.Constraint("Horizontal", 1))
sketch10.addConstraint(Sketcher.Constraint("Vertical", 2))
sketch10.addConstraint(Sketcher.Constraint("Horizontal", 3))
sketch10.addConstraint(Sketcher.Constraint("Horizontal", 4))
sketch10.addConstraint(Sketcher.Constraint("Vertical", 6))
sketch10.addConstraint(Sketcher.Constraint("Horizontal", 7))
sketch10.addConstraint(Sketcher.Constraint("Vertical", 9))
sketch10.addConstraint(Sketcher.Constraint("Horizontal", 11))
sketch10.addConstraint(Sketcher.Constraint("Vertical", 12))
sketch10.addConstraint(Sketcher.Constraint("Coincident", 11, 2, -1, 1))
sketch10.addConstraint(Sketcher.Constraint("Equal", 5, 8))
sketch10.addConstraint(Sketcher.Constraint("Equal", 8, 10))
sketch10.addConstraint(Sketcher.Constraint("Radius", 5, 1.0))
sketch10.addConstraint(Sketcher.Constraint("DistanceX", 1, 2, 1, 1, 76.0))
sketch10.addConstraint(Sketcher.Constraint("DistanceX", 4, 1, 4, 2, 5.0))
sketch10.addConstraint(Sketcher.Constraint("DistanceX", 7, 1, 7, 2, 31.0))
sketch10.addConstraint(Sketcher.Constraint("DistanceY", 0, 1, 0, 2, 40.0))
sketch10.addConstraint(Sketcher.Constraint("DistanceY", 6, 2, 6, 1, 9.0))
sketch10.addConstraint(Sketcher.Constraint("DistanceY", 9, 2, 9, 1, 8.0))
sketch10.addConstraint(Sketcher.Constraint("DistanceX", -1, 1, 0, 2, 57.0))
sketch10.addConstraint(Sketcher.Constraint("DistanceY", -1, 1, 0, 2, 30.0))
pocket4 = body.newObject("PartDesign::Pocket", "Pocket003")
pocket4.Profile = sketch10
pocket4.Length = 30
pocket4.Midplane = True

# Sketch on YZ plane
sketch11 = body.newObject("Sketcher::SketchObject", "Sketch010")
sketch11.AttachmentSupport = (doc.getObject("YZ_Plane"), [""])
sketch11.MapMode = "FlatFace"
sketch11.addGeometry(Part.ArcOfCircle(Part.Circle(App.Vector(7, 11, 0), App.Vector(0, 0, 1), 1), math.radians(180), math.radians(270)), False)
sketch11.addGeometry(Part.LineSegment(App.Vector(6, 11, 0), App.Vector(3, 11, 0)), False)
sketch11.addGeometry(Part.LineSegment(App.Vector(3, 11, 0), App.Vector(3, 5, 0)), False)
sketch11.addGeometry(Part.LineSegment(App.Vector(3, 5, 0), App.Vector(7, 5, 0)), False)
sketch11.addGeometry(Part.LineSegment(App.Vector(7, 5, 0), App.Vector(7, 10, 0)), False)
sketch11.addConstraint(Sketcher.Constraint("Coincident", 0, 1, 1, 1))
sketch11.addConstraint(Sketcher.Constraint("Coincident", 1, 2, 2, 1))
sketch11.addConstraint(Sketcher.Constraint("Coincident", 2, 2, 3, 1))
sketch11.addConstraint(Sketcher.Constraint("Coincident", 3, 2, 4, 1))
sketch11.addConstraint(Sketcher.Constraint("Coincident", 4, 2, 0, 2))
sketch11.addConstraint(Sketcher.Constraint("Horizontal", 1))
sketch11.addConstraint(Sketcher.Constraint("Vertical", 2))
sketch11.addConstraint(Sketcher.Constraint("Horizontal", 3))
sketch11.addConstraint(Sketcher.Constraint("Vertical", 4))
sketch11.addConstraint(Sketcher.Constraint("Vertical", 0, 3, 3, 2))
sketch11.addConstraint(Sketcher.Constraint("Radius", 0, 1.0))
sketch11.addConstraint(Sketcher.Constraint("DistanceX", 1, 2, 1, 1, 3.0))
sketch11.addConstraint(Sketcher.Constraint("DistanceY", 2, 2, 2, 1, 6.0))
sketch11.addConstraint(Sketcher.Constraint("DistanceY", 4, 1, 4, 2, 5.0))
sketch11.addConstraint(Sketcher.Constraint("DistanceX", -1, 1, 0, 3, 7.0))
sketch11.addConstraint(Sketcher.Constraint("DistanceY", -1, 1, 0, 3, 11.0))
pad3 = body.newObject("PartDesign::Pad", "Pad002")
pad3.Profile = sketch11
pad3.Length = 28
pad3.Midplane = True

doc.recompute()
